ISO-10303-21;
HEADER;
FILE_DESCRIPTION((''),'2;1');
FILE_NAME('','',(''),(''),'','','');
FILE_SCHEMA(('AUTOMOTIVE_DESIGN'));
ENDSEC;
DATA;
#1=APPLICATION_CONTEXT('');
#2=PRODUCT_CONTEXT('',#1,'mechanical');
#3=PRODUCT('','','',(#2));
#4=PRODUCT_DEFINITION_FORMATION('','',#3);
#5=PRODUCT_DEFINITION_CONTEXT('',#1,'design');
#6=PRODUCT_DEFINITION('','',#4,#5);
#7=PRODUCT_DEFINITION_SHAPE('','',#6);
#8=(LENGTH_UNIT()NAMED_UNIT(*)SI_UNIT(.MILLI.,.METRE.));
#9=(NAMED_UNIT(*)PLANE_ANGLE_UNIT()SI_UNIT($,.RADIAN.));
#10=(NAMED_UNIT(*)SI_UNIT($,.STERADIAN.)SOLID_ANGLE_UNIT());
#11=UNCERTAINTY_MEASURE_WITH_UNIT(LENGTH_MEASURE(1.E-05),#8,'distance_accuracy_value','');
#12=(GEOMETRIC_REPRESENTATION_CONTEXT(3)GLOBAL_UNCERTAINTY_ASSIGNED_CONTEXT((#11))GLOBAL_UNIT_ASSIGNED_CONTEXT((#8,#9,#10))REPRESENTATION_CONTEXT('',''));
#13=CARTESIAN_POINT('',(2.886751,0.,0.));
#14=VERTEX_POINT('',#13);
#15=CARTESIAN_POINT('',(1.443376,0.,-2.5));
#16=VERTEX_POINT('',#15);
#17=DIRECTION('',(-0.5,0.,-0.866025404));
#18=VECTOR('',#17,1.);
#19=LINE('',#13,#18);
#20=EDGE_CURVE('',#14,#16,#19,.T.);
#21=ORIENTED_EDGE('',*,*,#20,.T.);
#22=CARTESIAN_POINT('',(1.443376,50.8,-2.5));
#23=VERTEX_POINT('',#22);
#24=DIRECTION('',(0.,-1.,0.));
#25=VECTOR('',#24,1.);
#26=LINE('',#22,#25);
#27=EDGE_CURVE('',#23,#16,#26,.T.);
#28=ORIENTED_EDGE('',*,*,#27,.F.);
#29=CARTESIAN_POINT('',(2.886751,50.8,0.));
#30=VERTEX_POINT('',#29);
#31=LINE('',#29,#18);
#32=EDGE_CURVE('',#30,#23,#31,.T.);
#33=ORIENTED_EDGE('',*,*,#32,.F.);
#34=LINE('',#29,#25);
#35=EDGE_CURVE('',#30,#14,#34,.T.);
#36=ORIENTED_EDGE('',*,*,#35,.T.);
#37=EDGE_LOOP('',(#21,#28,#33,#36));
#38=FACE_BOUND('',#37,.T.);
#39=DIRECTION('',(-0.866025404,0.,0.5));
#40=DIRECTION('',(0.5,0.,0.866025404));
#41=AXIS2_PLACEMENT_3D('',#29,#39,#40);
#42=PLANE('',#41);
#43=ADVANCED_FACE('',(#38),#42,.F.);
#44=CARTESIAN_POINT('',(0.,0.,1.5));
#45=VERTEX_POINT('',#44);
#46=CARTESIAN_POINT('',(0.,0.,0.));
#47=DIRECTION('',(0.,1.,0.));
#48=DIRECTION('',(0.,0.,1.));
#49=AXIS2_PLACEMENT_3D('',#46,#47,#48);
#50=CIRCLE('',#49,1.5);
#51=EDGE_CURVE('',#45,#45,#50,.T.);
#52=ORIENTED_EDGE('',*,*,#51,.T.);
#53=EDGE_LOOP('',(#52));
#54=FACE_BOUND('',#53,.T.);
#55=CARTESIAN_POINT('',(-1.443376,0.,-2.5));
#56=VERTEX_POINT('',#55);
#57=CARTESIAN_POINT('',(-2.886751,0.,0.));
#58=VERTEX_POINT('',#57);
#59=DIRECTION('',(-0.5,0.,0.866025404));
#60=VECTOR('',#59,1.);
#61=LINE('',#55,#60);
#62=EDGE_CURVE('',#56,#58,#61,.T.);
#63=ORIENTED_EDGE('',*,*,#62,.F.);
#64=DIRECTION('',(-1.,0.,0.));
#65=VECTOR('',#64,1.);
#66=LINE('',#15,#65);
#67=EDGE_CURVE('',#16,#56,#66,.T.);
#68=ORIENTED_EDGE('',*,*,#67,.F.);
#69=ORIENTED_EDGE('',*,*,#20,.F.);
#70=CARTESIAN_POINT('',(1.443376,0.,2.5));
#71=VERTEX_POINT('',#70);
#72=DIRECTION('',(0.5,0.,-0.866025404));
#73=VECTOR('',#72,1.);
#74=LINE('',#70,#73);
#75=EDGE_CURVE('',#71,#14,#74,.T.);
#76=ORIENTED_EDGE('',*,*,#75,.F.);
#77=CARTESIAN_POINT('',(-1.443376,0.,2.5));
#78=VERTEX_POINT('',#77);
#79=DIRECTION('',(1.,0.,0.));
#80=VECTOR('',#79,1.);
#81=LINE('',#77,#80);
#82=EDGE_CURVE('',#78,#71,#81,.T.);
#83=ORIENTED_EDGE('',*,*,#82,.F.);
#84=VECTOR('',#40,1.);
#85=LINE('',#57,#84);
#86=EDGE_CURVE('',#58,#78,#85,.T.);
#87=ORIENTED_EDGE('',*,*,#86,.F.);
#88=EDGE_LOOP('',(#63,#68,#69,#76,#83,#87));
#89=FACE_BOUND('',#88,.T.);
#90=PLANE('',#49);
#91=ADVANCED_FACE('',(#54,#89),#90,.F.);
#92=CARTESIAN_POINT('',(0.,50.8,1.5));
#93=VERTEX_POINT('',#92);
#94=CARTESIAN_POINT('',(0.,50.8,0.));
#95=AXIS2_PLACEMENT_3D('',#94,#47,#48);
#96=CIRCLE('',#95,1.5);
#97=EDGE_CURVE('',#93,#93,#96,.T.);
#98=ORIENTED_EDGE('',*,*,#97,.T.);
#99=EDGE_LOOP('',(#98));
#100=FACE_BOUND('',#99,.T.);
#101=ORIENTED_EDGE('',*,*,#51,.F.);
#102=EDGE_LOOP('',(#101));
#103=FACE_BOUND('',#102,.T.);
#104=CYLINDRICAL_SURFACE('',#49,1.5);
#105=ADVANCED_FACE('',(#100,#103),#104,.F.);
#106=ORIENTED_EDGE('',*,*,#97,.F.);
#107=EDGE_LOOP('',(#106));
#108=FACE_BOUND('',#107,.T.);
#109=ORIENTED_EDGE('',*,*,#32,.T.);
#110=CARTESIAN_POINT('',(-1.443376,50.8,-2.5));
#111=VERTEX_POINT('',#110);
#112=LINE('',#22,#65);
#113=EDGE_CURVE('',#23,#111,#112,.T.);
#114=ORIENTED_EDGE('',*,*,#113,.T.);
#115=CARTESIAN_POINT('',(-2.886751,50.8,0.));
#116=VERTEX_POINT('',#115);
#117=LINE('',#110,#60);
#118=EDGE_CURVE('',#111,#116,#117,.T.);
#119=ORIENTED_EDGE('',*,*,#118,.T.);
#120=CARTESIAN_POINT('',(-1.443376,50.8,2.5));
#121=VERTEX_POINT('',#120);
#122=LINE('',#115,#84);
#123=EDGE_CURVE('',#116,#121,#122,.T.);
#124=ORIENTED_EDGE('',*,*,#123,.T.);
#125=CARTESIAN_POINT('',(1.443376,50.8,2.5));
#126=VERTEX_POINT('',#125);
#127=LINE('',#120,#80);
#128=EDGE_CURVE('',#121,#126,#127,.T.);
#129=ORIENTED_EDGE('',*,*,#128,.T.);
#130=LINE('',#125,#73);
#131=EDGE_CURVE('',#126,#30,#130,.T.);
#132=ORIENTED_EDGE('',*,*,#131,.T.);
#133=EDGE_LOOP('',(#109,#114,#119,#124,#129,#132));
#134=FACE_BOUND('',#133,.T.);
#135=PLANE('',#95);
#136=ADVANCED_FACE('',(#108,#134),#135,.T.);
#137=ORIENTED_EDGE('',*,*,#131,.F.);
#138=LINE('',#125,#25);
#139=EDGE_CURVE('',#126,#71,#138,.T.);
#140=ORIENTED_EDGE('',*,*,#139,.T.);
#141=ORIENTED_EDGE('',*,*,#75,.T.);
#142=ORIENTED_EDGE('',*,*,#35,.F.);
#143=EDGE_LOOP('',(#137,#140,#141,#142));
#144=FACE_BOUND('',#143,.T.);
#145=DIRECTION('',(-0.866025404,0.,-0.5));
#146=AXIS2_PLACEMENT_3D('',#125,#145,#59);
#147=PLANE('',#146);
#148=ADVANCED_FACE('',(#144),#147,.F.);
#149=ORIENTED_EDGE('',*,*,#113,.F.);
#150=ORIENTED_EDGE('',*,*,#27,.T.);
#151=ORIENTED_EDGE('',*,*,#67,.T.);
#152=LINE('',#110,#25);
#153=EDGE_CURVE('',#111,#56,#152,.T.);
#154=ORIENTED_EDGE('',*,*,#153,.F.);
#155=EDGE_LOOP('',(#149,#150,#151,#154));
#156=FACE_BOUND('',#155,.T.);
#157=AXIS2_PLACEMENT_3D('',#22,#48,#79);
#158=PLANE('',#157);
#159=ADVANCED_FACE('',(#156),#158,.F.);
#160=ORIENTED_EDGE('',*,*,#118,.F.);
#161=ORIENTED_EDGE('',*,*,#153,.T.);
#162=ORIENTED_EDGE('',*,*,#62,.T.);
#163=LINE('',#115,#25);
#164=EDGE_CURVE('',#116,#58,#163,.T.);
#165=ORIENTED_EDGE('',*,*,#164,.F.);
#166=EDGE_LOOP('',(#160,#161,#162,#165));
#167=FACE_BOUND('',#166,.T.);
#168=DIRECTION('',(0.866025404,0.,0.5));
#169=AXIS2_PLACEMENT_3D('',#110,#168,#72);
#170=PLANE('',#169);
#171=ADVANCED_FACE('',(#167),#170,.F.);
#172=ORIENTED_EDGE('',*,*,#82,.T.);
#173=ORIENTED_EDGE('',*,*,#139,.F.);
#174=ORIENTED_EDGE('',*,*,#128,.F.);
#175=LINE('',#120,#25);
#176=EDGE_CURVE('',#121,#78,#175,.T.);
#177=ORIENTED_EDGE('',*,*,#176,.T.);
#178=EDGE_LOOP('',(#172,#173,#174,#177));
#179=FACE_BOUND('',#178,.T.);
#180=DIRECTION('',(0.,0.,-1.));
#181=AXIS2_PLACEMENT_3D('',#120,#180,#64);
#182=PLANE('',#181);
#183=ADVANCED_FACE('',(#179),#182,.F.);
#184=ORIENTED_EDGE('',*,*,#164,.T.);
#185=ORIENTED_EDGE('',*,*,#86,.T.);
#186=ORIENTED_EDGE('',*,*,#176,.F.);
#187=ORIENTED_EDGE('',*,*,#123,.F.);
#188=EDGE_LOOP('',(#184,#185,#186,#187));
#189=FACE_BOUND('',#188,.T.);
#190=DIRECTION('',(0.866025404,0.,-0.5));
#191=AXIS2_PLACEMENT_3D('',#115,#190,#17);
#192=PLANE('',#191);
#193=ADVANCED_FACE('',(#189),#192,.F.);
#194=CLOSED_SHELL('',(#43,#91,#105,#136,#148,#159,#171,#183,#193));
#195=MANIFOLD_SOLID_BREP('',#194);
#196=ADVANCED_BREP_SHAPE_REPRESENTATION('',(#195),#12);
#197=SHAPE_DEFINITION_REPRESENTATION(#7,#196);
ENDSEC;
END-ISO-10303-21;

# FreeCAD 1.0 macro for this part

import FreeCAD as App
import Part
import Sketcher
Q = App.Units.Quantity

doc = App.newDocument("Part")
params = doc.addObject("Spreadsheet::Sheet", "Params")
for row, (alias, value) in enumerate([
    ("pad1_length", "50.8 mm"),
    ("sketch2_diameter", "3 mm"),
], start=1):
    params.set(f"A{row}", alias)
    params.set(f"B{row}", "=" + value)
    params.setAlias(f"B{row}", alias)

body = doc.addObject("PartDesign::Body", "Body")

# Sketch on XZ plane
sketch1 = doc.addObject("Sketcher::SketchObject", "Sketch")
body.addObject(sketch1)
sketch1.AttachmentSupport = (doc.XZ_Plane, [""])
sketch1.MapMode = "FlatFace"
sketch1.addGeometry([
    Part.LineSegment(App.Vector(2.9, 0, 0), App.Vector(1.4, -2.5, 0)),  # 0
    Part.LineSegment(App.Vector(1.4, -2.5, 0), App.Vector(-1.4, -2.5, 0)),  # 1
    Part.LineSegment(App.Vector(-1.4, -2.5, 0), App.Vector(-2.9, 0, 0)),  # 2
    Part.LineSegment(App.Vector(-2.9, 0, 0), App.Vector(-1.4, 2.5, 0)),  # 3
    Part.LineSegment(App.Vector(-1.4, 2.5, 0), App.Vector(1.4, 2.5, 0)),  # 4
    Part.LineSegment(App.Vector(1.4, 2.5, 0), App.Vector(2.9, 0, 0)),  # 5
], False)
sketch1.addConstraint([
    Sketcher.Constraint("Coincident", 0, 2, 1, 1),
    Sketcher.Constraint("Coincident", 1, 2, 2, 1),
    Sketcher.Constraint("Coincident", 2, 2, 3, 1),
    Sketcher.Constraint("Coincident", 3, 2, 4, 1),
    Sketcher.Constraint("Coincident", 4, 2, 5, 1),
    Sketcher.Constraint("Coincident", 5, 2, 0, 1),
    Sketcher.Constraint("Horizontal", 1),
    Sketcher.Constraint("Horizontal", 4),
    Sketcher.Constraint("Symmetric", 0, 2, 3, 2, -1, 1),
    Sketcher.Constraint("Symmetric", 2, 2, 5, 2, -1, 1),
    Sketcher.Constraint("PointOnObject", 2, 2, -1),
    Sketcher.Constraint("Parallel", 2, 5),
    Sketcher.Constraint("Vertical", 1, 2, 3, 2),
    Sketcher.Constraint("Angle", 0, Q("-120 deg")),
    Sketcher.Constraint("DistanceY", 1, 2, 3, 2, Q("5 mm")),
    Sketcher.Constraint("DistanceX", 1, 2, 1, 1, Q("2.886751 mm")),
])
pad1 = doc.addObject("PartDesign::Pad", "Pad")
body.addObject(pad1)
pad1.Profile = sketch1
pad1.setExpression("Length", "Params.pad1_length")
pad1.Reversed = True

# Sketch on XZ plane
sketch2 = doc.addObject("Sketcher::SketchObject", "Sketch001")
body.addObject(sketch2)
sketch2.AttachmentSupport = (doc.XZ_Plane, [""])
sketch2.MapMode = "FlatFace"
sketch2.AttachmentOffset = App.Placement(App.Vector(0, 0, -50.8), App.Rotation())
sketch2.addGeometry(Part.Circle(App.Vector(0, 0, 0), App.Vector(0, 0, 1), 1.5), False)
sketch2.addConstraint([
    Sketcher.Constraint("Coincident", 0, 3, -1, 1),
    Sketcher.Constraint("Diameter", 0, Q("3 mm")),
])
sketch2.setExpression("Constraints[1]", "Params.sketch2_diameter")
pocket1 = doc.addObject("PartDesign::Pocket", "Pocket")
body.addObject(pocket1)
pocket1.Profile = sketch2
pocket1.Type = "ThroughAll"
pocket1.Reversed = True

doc.recompute()
